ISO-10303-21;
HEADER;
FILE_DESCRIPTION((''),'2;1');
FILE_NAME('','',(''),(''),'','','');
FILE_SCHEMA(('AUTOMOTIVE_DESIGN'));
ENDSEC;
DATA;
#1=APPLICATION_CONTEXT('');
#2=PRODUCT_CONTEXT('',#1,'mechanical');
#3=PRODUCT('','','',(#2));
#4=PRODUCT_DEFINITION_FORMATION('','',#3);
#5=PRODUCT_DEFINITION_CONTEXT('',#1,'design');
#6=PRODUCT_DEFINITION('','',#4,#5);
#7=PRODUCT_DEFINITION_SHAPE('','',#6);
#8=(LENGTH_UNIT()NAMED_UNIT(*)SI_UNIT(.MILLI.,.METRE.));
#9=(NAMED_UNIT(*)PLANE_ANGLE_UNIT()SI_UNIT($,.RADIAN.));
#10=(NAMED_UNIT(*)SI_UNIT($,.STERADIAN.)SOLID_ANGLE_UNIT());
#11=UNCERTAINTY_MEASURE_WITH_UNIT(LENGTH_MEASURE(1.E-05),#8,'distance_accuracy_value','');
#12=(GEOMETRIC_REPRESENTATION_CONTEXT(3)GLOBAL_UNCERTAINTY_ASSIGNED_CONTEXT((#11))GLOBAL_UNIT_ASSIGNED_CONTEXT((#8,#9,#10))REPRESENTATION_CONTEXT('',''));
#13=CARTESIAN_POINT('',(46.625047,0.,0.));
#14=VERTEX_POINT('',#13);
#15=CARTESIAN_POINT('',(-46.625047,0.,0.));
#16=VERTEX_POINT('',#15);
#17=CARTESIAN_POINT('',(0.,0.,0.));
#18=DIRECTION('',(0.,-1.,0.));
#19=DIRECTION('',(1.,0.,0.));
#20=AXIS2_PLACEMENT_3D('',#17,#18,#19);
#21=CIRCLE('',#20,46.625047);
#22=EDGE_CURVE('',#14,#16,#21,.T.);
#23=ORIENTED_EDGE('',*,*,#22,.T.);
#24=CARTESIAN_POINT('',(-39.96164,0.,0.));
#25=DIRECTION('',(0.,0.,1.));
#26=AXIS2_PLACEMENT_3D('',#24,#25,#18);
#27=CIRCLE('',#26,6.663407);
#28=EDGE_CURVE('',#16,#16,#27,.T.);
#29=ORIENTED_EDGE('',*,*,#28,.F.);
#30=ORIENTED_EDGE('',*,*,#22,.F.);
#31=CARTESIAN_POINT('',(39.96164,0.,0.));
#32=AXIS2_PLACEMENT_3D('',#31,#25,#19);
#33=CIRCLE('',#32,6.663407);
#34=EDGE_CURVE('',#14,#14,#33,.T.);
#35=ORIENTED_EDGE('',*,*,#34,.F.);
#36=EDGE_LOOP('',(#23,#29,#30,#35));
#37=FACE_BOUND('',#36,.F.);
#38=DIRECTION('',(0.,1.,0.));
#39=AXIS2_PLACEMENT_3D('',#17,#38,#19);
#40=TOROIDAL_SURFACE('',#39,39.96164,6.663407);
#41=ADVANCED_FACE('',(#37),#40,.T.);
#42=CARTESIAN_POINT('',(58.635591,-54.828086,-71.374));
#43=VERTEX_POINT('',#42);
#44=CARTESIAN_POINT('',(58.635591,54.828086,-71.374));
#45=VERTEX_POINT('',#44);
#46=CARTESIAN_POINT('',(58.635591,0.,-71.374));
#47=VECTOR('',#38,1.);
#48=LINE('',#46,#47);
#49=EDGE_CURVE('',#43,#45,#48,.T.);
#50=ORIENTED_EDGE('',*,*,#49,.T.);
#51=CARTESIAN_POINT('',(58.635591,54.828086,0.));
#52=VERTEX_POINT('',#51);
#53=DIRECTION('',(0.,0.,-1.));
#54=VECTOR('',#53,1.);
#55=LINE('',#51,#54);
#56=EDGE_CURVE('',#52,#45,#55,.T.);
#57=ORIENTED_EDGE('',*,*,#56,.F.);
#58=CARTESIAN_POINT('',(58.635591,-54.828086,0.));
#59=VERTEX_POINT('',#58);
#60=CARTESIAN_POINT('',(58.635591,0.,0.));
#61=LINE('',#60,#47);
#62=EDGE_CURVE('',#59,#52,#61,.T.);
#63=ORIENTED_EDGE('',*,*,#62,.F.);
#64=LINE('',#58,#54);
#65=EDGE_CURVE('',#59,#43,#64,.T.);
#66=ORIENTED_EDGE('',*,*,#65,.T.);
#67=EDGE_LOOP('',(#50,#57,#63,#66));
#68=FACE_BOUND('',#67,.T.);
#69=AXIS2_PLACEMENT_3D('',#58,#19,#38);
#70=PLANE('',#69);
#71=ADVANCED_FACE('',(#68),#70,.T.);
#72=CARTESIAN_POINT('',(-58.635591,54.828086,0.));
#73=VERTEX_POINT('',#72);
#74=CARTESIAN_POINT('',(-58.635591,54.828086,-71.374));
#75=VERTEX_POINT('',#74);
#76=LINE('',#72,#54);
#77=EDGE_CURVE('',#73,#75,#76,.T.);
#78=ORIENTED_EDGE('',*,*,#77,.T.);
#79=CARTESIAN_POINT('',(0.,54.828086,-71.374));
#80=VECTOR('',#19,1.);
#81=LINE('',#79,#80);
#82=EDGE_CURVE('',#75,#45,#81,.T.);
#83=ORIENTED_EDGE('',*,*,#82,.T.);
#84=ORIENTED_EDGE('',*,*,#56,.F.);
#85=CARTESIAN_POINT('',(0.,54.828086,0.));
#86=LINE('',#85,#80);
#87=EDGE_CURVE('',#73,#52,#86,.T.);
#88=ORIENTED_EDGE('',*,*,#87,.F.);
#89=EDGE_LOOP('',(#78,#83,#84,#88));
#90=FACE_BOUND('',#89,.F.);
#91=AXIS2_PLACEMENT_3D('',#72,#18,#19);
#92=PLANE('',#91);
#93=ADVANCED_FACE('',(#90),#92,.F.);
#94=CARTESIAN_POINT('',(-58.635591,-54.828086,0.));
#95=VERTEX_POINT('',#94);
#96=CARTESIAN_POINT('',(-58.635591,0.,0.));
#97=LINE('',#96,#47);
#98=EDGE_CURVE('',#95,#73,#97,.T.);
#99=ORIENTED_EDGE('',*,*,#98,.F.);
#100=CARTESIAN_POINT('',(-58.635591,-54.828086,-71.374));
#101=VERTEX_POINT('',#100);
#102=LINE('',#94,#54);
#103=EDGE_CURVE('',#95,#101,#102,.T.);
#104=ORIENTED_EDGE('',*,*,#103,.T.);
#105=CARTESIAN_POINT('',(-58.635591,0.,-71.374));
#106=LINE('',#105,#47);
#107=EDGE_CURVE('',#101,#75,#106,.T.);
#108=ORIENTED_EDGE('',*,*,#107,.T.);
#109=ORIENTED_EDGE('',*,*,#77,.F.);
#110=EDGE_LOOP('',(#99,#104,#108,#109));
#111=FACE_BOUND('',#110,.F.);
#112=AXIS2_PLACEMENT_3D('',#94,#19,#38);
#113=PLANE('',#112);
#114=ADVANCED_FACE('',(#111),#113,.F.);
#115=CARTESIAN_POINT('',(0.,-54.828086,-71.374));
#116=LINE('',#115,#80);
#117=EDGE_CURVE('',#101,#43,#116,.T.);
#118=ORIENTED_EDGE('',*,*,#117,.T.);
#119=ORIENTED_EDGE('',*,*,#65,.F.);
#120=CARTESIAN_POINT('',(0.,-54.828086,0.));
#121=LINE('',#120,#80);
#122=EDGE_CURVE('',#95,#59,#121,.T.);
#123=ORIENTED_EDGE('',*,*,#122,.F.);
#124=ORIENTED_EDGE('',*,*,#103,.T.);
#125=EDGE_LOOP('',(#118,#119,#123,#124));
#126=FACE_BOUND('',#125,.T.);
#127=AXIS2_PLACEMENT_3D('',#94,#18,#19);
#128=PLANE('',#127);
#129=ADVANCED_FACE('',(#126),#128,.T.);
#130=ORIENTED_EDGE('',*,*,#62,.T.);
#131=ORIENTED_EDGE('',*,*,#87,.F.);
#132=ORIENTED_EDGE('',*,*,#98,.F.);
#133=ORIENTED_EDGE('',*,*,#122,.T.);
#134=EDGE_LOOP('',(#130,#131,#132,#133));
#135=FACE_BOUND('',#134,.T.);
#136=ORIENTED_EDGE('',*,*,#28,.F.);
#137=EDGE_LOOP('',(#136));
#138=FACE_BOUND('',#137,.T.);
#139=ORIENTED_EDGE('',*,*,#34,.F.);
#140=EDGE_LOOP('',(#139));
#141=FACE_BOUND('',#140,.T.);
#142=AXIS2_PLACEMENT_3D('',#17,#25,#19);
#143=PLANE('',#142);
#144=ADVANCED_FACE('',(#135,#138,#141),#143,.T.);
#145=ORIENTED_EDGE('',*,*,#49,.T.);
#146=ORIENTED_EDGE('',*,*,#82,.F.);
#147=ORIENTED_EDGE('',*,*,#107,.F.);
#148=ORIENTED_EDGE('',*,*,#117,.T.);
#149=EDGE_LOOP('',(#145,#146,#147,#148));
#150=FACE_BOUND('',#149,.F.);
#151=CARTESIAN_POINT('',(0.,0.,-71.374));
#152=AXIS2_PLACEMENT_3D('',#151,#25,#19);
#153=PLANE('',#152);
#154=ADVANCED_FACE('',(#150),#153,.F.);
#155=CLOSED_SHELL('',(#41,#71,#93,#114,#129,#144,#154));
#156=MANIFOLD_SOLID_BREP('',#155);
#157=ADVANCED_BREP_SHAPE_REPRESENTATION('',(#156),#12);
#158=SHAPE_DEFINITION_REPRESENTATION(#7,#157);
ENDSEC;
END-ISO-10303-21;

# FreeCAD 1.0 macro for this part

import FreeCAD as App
import Part
import Sketcher

doc = App.newDocument("Part")
params = doc.addObject("Spreadsheet::Sheet", "Params")
for row, (alias, value) in enumerate([
    ("pad1_length", "2.81 in"),
    ("revolution_angle", "360 deg"),
], start=1):
    params.set(f"A{row}", alias)
    params.set(f"B{row}", "=" + value)
    params.setAlias(f"B{row}", alias)

body = doc.addObject("PartDesign::Body", "Body")

# Sketch on XY plane
sketch1 = body.newObject("Sketcher::SketchObject", "Sketch")
sketch1.AttachmentSupport = (doc.getObject("XY_Plane"), [""])
sketch1.MapMode = "FlatFace"
sketch1.addGeometry([
    Part.LineSegment(App.Vector(-59, 55, 0), App.Vector(-59, -55, 0)),
    Part.LineSegment(App.Vector(-59, -55, 0), App.Vector(59, -55, 0)),
    Part.LineSegment(App.Vector(59, -55, 0), App.Vector(59, 55, 0)),
    Part.LineSegment(App.Vector(59, 55, 0), App.Vector(-59, 55, 0)),
], False)
sketch1.addConstraint([
    Sketcher.Constraint("Coincident", 0, 2, 1, 1),
    Sketcher.Constraint("Coincident", 1, 2, 2, 1),
    Sketcher.Constraint("Coincident", 2, 2, 3, 1),
    Sketcher.Constraint("Coincident", 3, 2, 0, 1),
    Sketcher.Constraint("Vertical", 0),
    Sketcher.Constraint("Horizontal", 1),
    Sketcher.Constraint("Vertical", 2),
    Sketcher.Constraint("Horizontal", 3),
    Sketcher.Constraint("Symmetric", 0, 2, 2, 2, -1, 1),
    Sketcher.Constraint("DistanceX", 1, 1, 1, 2, 117.271182),
    Sketcher.Constraint("DistanceY", 0, 2, 0, 1, 109.656172),
])
pad1 = body.newObject("PartDesign::Pad", "Pad")
pad1.Profile = sketch1
pad1.setExpression("Length", "Params.pad1_length")
pad1.Reversed = True

# Sketch on XY plane
sketch2 = body.newObject("Sketcher::SketchObject", "Sketch001")
sketch2.AttachmentSupport = (doc.getObject("XY_Plane"), [""])
sketch2.MapMode = "FlatFace"
sketch2.addGeometry(Part.Circle(App.Vector(40, 0, 0), App.Vector(0, 0, 1), 7), False)
sketch2.addConstraint([
    Sketcher.Constraint("PointOnObject", 0, 3, -1),
    Sketcher.Constraint("Diameter", 0, 13.326814),
    Sketcher.Constraint("DistanceX", -1, 1, 0, 3, 39.96164),
])
revolution = body.newObject("PartDesign::Revolution", "Revolution")
revolution.Profile = sketch2
revolution.ReferenceAxis = (sketch2, ["V_Axis"])
revolution.setExpression("Angle", "Params.revolution_angle")

doc.recompute()
